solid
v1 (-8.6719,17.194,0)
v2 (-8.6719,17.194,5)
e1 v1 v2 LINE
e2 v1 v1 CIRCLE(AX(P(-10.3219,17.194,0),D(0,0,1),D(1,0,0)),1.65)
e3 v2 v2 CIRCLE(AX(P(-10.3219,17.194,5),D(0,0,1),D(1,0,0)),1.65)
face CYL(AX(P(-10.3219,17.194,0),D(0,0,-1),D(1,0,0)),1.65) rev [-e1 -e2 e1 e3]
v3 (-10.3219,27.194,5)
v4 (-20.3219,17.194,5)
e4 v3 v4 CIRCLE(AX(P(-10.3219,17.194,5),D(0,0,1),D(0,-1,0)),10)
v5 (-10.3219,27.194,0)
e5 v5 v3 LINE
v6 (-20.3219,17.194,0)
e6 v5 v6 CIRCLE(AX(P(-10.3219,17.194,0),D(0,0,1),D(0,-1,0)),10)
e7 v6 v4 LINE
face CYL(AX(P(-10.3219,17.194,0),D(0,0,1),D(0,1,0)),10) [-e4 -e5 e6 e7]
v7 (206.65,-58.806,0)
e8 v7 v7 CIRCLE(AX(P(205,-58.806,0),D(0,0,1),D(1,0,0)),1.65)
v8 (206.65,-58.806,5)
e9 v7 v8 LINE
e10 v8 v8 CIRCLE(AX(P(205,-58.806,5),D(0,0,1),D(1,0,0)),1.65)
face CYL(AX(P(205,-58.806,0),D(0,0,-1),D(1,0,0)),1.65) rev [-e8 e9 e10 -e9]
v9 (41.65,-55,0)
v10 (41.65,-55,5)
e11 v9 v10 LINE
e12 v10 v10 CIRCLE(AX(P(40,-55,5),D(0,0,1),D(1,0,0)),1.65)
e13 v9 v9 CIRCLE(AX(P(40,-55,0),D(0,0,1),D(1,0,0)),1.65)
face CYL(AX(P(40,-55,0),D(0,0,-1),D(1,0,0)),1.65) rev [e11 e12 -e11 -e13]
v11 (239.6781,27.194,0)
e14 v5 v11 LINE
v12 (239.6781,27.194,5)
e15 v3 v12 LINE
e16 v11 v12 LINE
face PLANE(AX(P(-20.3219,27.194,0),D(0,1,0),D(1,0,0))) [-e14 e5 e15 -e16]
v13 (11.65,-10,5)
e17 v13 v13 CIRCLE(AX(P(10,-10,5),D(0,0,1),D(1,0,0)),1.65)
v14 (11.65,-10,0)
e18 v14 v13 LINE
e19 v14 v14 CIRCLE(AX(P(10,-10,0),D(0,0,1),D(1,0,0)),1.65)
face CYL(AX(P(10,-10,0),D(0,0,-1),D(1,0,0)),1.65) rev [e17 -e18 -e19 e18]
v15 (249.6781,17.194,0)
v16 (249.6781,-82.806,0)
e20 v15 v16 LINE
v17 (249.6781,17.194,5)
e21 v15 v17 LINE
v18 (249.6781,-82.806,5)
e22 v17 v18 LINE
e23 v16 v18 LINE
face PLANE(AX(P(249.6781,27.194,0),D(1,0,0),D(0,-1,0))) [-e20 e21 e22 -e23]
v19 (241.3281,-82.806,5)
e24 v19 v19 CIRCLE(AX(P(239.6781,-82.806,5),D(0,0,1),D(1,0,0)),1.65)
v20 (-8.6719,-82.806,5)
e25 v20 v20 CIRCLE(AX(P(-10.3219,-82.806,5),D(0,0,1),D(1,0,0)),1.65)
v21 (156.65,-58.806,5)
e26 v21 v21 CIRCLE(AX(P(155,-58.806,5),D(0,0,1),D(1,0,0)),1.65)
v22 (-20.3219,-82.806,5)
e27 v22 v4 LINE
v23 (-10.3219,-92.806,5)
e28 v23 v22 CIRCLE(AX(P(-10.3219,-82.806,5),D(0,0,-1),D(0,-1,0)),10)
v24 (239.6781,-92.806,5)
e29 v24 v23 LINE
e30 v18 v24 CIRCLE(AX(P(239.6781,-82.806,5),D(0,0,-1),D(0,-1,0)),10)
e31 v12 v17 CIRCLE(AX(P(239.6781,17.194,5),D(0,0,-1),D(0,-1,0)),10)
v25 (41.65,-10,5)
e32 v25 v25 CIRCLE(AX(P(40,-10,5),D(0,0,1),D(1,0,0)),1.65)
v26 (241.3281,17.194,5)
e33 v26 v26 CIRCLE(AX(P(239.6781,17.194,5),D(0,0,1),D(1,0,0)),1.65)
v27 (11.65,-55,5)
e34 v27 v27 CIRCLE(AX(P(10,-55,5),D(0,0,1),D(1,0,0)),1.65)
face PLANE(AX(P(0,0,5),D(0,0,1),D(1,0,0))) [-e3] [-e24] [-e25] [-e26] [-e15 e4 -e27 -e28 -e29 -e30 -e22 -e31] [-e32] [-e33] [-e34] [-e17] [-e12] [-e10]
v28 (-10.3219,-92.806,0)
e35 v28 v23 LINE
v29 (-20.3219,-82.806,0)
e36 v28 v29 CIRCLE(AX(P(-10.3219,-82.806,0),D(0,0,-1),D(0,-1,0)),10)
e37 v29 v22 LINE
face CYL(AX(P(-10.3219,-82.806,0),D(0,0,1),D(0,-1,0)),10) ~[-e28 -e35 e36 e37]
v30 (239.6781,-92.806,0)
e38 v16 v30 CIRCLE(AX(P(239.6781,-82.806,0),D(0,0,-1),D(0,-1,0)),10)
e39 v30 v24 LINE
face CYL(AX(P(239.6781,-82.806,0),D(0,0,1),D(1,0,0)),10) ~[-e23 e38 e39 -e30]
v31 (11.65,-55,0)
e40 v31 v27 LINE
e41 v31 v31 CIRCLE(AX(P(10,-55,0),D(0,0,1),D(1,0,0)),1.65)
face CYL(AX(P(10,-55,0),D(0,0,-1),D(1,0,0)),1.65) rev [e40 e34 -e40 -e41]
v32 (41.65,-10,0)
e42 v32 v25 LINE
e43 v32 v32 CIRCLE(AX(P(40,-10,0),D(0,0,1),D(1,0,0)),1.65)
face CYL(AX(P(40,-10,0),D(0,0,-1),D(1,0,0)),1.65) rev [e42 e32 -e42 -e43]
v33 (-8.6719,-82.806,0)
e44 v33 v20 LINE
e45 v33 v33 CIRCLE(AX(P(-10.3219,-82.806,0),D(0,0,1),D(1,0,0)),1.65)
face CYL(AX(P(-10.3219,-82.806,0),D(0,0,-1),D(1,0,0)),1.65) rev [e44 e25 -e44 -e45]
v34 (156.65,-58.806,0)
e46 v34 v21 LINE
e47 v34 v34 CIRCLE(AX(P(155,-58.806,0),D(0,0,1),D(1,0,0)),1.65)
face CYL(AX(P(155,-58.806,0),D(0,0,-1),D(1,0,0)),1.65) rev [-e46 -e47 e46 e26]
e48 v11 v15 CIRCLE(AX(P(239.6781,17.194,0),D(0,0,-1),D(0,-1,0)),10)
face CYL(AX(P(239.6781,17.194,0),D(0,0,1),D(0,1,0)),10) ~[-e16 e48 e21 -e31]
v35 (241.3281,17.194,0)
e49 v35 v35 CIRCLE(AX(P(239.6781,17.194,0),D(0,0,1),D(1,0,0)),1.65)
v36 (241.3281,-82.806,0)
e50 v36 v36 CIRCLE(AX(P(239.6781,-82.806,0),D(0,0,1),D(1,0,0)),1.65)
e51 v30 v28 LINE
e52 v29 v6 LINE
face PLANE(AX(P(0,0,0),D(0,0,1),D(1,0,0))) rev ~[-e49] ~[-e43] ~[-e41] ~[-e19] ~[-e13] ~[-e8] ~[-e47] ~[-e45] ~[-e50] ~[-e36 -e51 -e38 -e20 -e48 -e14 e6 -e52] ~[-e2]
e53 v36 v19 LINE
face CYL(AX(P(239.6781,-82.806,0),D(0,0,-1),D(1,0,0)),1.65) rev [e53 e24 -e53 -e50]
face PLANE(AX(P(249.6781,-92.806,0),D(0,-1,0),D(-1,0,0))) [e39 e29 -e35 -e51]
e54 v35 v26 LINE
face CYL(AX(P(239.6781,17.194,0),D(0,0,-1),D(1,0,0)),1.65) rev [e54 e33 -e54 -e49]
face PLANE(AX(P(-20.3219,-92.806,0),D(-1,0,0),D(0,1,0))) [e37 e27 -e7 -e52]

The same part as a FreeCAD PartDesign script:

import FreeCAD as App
import Part
import Sketcher
from FreeCAD import Vector
Q = App.Units.Quantity


def edges_at(feature, points):
    """Names of the edges that pass closest to the given points."""
    edges = feature.Shape.Edges
    near = lambda p: min(range(len(edges)), key=lambda i: edges[i].distToShape(Part.Vertex(*p))[0])
    return sorted({f"Edge{near(p) + 1}" for p in points})


def add_polygon(sketch, points):
    """Adds a closed chain of lines whose ends are joined by coincident constraints."""
    first, n = sketch.GeometryCount, len(points)
    for a, b in zip(points, points[1:] + points[:1]):
        sketch.addGeometry(Part.LineSegment(App.Vector(*a, 0), App.Vector(*b, 0)), False)
    for i in range(n):
        sketch.addConstraint(Sketcher.Constraint("Coincident", first + i, 2, first + (i + 1) % n, 1))

doc = App.newDocument("Part")
params = doc.addObject("Spreadsheet::Sheet", "Params")
for row, (alias, value) in enumerate([
    ("sketch1_diameter", "3.3 mm"),
    ("sketch1_width", "270 mm"),
    ("sketch1_height", "120 mm"),
    ("pad1_length", "5 mm"),
    ("fillet_radius", "10 mm"),
], start=1):
    params.set(f"A{row}", alias)
    params.set(f"B{row}", "=" + value)
    params.setAlias(f"B{row}", alias)

body = doc.addObject("PartDesign::Body", "Body")

# Sketch on XY plane
sketch1 = body.newObject("Sketcher::SketchObject", "Sketch")
sketch1.AttachmentSupport = (doc.getObject("XY_Plane"), [""])
sketch1.MapMode = "FlatFace"
add_polygon(sketch1, [(249.7, 27.2), (-20.3, 27.2), (-20.3, -92.8), (249.7, -92.8)])  # lines 0-3
sketch1.addGeometry(Part.Circle(Vector(-10.3, -82.8, 0), Vector(0, 0, 1), 1.6), False)  # 4
sketch1.addGeometry(Part.Circle(Vector(10, -55, 0), Vector(0, 0, 1), 1.6), False)  # 5
sketch1.addGeometry(Part.Circle(Vector(40, -55, 0), Vector(0, 0, 1), 1.6), False)  # 6
sketch1.addGeometry(Part.Circle(Vector(239.7, -82.8, 0), Vector(0, 0, 1), 1.6), False)  # 7
sketch1.addGeometry(Part.Circle(Vector(155, -58.8, 0), Vector(0, 0, 1), 1.6), False)  # 8
sketch1.addGeometry(Part.Circle(Vector(205, -58.8, 0), Vector(0, 0, 1), 1.6), False)  # 9
sketch1.addGeometry(Part.Circle(Vector(10, -10, 0), Vector(0, 0, 1), 1.6), False)  # 10
sketch1.addGeometry(Part.Circle(Vector(40, -10, 0), Vector(0, 0, 1), 1.6), False)  # 11
sketch1.addGeometry(Part.Circle(Vector(-10.3, 17.2, 0), Vector(0, 0, 1), 1.6), False)  # 12
sketch1.addGeometry(Part.Circle(Vector(239.7, 17.2, 0), Vector(0, 0, 1), 1.6), False)  # 13
sketch1.addConstraint(Sketcher.Constraint("Horizontal", 0))
sketch1.addConstraint(Sketcher.Constraint("Vertical", 1))
sketch1.addConstraint(Sketcher.Constraint("Horizontal", 2))
sketch1.addConstraint(Sketcher.Constraint("Vertical", 3))
sketch1.addConstraint(Sketcher.Constraint("Equal", 4, 5))
sketch1.addConstraint(Sketcher.Constraint("Equal", 5, 6))
sketch1.addConstraint(Sketcher.Constraint("Equal", 6, 7))
sketch1.addConstraint(Sketcher.Constraint("Equal", 7, 8))
sketch1.addConstraint(Sketcher.Constraint("Equal", 8, 9))
sketch1.addConstraint(Sketcher.Constraint("Equal", 9, 10))
sketch1.addConstraint(Sketcher.Constraint("Equal", 10, 11))
sketch1.addConstraint(Sketcher.Constraint("Equal", 11, 12))
sketch1.addConstraint(Sketcher.Constraint("Equal", 12, 13))
sketch1.addConstraint(Sketcher.Constraint("Horizontal", 5, 3, 6, 3))
sketch1.addConstraint(Sketcher.Constraint("Horizontal", 4, 3, 7, 3))
sketch1.addConstraint(Sketcher.Constraint("Horizontal", 8, 3, 9, 3))
sketch1.addConstraint(Sketcher.Constraint("Horizontal", 10, 3, 11, 3))
sketch1.addConstraint(Sketcher.Constraint("Horizontal", 12, 3, 13, 3))
sketch1.addConstraint(Sketcher.Constraint("Vertical", 5, 3, 10, 3))
sketch1.addConstraint(Sketcher.Constraint("Vertical", 6, 3, 11, 3))
sketch1.addConstraint(Sketcher.Constraint("Vertical", 4, 3, 12, 3))
sketch1.addConstraint(Sketcher.Constraint("Vertical", 7, 3, 13, 3))
sketch1.addConstraint(Sketcher.Constraint("Diameter", 4, Q("3.3 mm")))
sketch1.addConstraint(Sketcher.Constraint("DistanceX", 0, 2, 0, 1, Q("270 mm")))
sketch1.addConstraint(Sketcher.Constraint("DistanceY", 1, 2, 1, 1, Q("120 mm")))
sketch1.addConstraint(Sketcher.Constraint("DistanceX", -1, 1, 5, 3, Q("10 mm")))
sketch1.addConstraint(Sketcher.Constraint("DistanceY", 10, 3, -1, 1, Q("10 mm")))
sketch1.addConstraint(Sketcher.Constraint("DistanceX", 5, 3, 6, 3, Q("30 mm")))
sketch1.addConstraint(Sketcher.Constraint("DistanceX", 6, 3, 8, 3, Q("115 mm")))
sketch1.addConstraint(Sketcher.Constraint("DistanceX", 8, 3, 9, 3, Q("50 mm")))
sketch1.addConstraint(Sketcher.Constraint("DistanceY", 5, 3, 10, 3, Q("45 mm")))
sketch1.addConstraint(Sketcher.Constraint("DistanceX", 0, 2, 12, 3, Q("10 mm")))
sketch1.addConstraint(Sketcher.Constraint("DistanceY", 12, 3, 0, 2, Q("10 mm")))
sketch1.addConstraint(Sketcher.Constraint("DistanceY", 1, 2, 4, 3, Q("10 mm")))
sketch1.addConstraint(Sketcher.Constraint("DistanceX", 7, 3, 2, 2, Q("10 mm")))
sketch1.addConstraint(Sketcher.Constraint("DistanceY", 2, 2, 9, 3, Q("34 mm")))
sketch1.addConstraint(Sketcher.Constraint("DistanceX", 4, 3, -1, 1, Q("10.322 mm")))
sketch1.addConstraint(Sketcher.Constraint("DistanceY", 4, 3, -1, 1, Q("82.806 mm")))
sketch1.setExpression("Constraints[26]", "Params.sketch1_diameter")
sketch1.setExpression("Constraints[27]", "Params.sketch1_width")
sketch1.setExpression("Constraints[28]", "Params.sketch1_height")
pad1 = body.newObject("PartDesign::Pad", "Pad")
pad1.Profile = sketch1
pad1.setExpression("Length", "Params.pad1_length")
doc.recompute()

fillet = body.newObject("PartDesign::Fillet", "Fillet")
fillet.Base = (pad1, edges_at(pad1, [
    (-20.322, -92.806, 2.5),
    (249.678, -92.806, 2.5),
    (249.678, 27.194, 2.5),
    (-20.322, 27.194, 2.5),
]))
fillet.setExpression("Radius", "Params.fillet_radius")

doc.recompute()
